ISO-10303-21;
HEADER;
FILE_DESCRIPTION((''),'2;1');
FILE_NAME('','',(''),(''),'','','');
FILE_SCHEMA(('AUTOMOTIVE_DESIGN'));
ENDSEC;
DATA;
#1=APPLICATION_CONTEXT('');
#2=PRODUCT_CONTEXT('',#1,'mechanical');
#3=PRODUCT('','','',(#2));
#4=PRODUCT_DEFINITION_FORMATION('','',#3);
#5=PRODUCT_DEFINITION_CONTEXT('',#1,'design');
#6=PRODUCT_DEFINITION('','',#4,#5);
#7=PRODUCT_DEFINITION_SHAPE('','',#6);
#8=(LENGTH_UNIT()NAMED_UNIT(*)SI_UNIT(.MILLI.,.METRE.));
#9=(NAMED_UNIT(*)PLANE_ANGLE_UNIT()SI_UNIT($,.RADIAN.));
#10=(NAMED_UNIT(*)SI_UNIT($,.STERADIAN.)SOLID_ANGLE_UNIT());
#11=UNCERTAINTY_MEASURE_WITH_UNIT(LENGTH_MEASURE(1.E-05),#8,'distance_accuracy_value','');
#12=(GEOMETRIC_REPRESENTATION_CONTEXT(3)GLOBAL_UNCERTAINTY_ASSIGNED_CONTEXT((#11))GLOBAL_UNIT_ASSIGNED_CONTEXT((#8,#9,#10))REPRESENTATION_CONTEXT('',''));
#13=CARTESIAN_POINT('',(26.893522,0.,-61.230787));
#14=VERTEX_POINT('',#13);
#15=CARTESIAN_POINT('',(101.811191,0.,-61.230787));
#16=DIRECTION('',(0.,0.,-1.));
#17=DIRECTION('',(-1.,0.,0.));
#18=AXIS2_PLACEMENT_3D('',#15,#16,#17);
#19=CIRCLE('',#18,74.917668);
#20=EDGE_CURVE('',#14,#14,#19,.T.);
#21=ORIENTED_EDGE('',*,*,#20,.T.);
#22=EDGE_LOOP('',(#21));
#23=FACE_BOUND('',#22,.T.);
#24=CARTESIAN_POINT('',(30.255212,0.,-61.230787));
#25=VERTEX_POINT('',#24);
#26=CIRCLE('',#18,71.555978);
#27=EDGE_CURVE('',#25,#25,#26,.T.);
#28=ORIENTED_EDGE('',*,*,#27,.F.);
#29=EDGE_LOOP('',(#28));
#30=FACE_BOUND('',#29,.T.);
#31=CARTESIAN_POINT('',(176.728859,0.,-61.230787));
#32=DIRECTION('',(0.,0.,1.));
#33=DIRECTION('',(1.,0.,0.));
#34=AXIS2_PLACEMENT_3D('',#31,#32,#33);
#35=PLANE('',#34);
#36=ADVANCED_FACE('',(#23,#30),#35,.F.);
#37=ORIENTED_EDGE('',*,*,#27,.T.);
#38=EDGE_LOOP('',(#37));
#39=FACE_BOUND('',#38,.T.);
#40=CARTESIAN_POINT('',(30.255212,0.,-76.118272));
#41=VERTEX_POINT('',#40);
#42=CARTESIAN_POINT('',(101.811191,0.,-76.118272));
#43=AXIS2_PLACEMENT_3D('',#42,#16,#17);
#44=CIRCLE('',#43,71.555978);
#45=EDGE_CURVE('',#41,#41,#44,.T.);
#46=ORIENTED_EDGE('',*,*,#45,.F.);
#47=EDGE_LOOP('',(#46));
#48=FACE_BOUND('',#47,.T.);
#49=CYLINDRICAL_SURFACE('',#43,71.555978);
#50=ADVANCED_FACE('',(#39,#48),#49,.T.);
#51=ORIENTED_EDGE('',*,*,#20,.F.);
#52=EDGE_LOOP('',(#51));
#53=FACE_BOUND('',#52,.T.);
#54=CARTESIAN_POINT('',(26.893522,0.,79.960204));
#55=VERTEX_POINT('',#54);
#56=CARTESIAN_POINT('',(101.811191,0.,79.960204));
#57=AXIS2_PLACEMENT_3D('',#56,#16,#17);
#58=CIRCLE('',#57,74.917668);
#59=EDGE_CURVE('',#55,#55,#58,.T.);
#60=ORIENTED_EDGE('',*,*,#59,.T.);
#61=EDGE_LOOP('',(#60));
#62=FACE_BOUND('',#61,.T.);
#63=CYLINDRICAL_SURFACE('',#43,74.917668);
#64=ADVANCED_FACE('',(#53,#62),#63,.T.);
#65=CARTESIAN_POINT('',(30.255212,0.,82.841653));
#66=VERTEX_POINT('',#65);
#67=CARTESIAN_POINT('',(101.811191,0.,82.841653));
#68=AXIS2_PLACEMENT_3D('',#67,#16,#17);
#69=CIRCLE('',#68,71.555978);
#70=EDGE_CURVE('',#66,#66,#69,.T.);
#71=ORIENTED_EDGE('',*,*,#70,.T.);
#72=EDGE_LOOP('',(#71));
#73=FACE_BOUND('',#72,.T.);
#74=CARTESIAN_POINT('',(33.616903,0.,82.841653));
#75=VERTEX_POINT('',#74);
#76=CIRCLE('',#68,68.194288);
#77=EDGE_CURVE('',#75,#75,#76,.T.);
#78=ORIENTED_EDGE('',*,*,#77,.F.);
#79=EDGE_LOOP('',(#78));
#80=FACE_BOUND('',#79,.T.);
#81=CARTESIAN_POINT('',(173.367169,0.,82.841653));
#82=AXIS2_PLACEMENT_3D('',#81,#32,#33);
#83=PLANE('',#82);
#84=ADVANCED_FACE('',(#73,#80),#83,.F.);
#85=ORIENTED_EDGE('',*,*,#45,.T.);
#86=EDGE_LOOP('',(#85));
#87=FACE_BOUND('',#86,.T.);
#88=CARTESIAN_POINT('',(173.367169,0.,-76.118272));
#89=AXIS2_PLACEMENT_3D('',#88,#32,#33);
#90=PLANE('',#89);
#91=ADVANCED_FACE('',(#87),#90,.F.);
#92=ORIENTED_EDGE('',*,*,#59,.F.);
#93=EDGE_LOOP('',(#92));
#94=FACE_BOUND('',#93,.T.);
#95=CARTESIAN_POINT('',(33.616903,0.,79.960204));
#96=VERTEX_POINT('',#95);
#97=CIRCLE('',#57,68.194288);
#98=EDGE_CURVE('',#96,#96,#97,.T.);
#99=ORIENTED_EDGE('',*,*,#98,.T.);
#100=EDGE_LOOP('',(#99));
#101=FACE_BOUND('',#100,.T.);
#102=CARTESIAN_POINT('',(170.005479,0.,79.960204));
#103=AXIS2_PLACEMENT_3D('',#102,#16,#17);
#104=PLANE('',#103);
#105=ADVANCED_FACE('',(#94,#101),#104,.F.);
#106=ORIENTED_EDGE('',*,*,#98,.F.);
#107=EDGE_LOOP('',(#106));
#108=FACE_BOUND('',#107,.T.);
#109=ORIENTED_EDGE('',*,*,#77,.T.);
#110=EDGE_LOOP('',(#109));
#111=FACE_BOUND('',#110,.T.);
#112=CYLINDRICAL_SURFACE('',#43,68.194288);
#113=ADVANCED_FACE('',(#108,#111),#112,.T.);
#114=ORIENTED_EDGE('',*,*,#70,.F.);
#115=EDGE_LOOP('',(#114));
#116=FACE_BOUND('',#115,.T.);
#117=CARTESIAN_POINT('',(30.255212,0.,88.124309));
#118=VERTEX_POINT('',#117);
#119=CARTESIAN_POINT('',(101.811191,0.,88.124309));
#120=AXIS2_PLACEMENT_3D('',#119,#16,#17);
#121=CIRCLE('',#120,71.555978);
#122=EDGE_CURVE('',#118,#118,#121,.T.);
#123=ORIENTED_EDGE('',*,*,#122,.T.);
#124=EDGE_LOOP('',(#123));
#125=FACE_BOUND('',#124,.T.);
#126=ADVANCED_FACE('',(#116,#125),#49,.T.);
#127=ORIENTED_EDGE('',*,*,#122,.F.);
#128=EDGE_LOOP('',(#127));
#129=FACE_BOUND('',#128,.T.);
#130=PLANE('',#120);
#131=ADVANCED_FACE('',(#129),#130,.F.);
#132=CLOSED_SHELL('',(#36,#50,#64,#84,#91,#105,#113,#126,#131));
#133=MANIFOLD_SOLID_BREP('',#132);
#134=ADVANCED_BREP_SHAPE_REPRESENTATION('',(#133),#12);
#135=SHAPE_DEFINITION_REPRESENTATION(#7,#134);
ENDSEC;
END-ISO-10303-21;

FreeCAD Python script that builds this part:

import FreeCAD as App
import Part
import Sketcher
from FreeCAD import Vector

doc = App.newDocument("Part")
params = doc.addObject("Spreadsheet::Sheet", "Params")
for row, (alias, value) in enumerate([
    ("revolution_angle", "360 deg"),
], start=1):
    params.set(f"A{row}", alias)
    params.set(f"B{row}", "=" + value)
    params.setAlias(f"B{row}", alias)

body = doc.addObject("PartDesign::Body", "Body")

sketch1 = body.newObject("Sketcher::SketchObject", "Sketch")
sketch1.AttachmentSupport = (doc.getObject("XZ_Plane"), [""])
sketch1.MapMode = "FlatFace"
sketch1.addGeometry([
    Part.LineSegment(Vector(101.8, 88.1, 0), Vector(173.4, 88.1, 0)),
    Part.LineSegment(Vector(173.4, 88.1, 0), Vector(173.4, 82.8, 0)),
    Part.LineSegment(Vector(173.4, 82.8, 0), Vector(170, 82.8, 0)),
    Part.LineSegment(Vector(170, 82.8, 0), Vector(170, 80, 0)),
    Part.LineSegment(Vector(170, 80, 0), Vector(176.7, 80, 0)),
    Part.LineSegment(Vector(176.7, 80, 0), Vector(176.7, -61.2, 0)),
    Part.LineSegment(Vector(176.7, -61.2, 0), Vector(173.4, -61.2, 0)),
    Part.LineSegment(Vector(173.4, -61.2, 0), Vector(173.4, -76.1, 0)),
    Part.LineSegment(Vector(173.4, -76.1, 0), Vector(101.8, -76.1, 0)),
    Part.LineSegment(Vector(101.8, -76.1, 0), Vector(101.8, 88.1, 0)),
], False)
sketch1.addGeometry(Part.LineSegment(Vector(101.8, -76.1, 0), Vector(101.8, 88.1, 0)), True)
sketch1.addConstraint([
    Sketcher.Constraint("Coincident", 0, 2, 1, 1),
    Sketcher.Constraint("Coincident", 1, 2, 2, 1),
    Sketcher.Constraint("Coincident", 2, 2, 3, 1),
    Sketcher.Constraint("Coincident", 3, 2, 4, 1),
    Sketcher.Constraint("Coincident", 4, 2, 5, 1),
    Sketcher.Constraint("Coincident", 5, 2, 6, 1),
    Sketcher.Constraint("Coincident", 6, 2, 7, 1),
    Sketcher.Constraint("Coincident", 7, 2, 8, 1),
    Sketcher.Constraint("Coincident", 8, 2, 9, 1),
    Sketcher.Constraint("Coincident", 9, 2, 0, 1),
    Sketcher.Constraint("Horizontal", 0),
    Sketcher.Constraint("Vertical", 1),
    Sketcher.Constraint("Horizontal", 2),
    Sketcher.Constraint("Vertical", 3),
    Sketcher.Constraint("Horizontal", 4),
    Sketcher.Constraint("Vertical", 5),
    Sketcher.Constraint("Horizontal", 6),
    Sketcher.Constraint("Vertical", 7),
    Sketcher.Constraint("Horizontal", 8),
    Sketcher.Constraint("Vertical", 9),
    Sketcher.Constraint("Vertical", 10),
    Sketcher.Constraint("Coincident", 10, 1, 8, 2),
    Sketcher.Constraint("Horizontal", 0, 2, 10, 2),
    Sketcher.Constraint("Vertical", 1, 2, 6, 2),
    Sketcher.Constraint("Equal", 2, 6),
    Sketcher.Constraint("DistanceX", 0, 1, 0, 2, 71.555978),
    Sketcher.Constraint("DistanceX", 2, 2, 2, 1, 3.36169),
    Sketcher.Constraint("DistanceY", 3, 2, 3, 1, 2.881449),
    Sketcher.Constraint("DistanceY", 5, 2, 5, 1, 141.190991),
    Sketcher.Constraint("DistanceY", 9, 1, 9, 2, 164.242581),
    Sketcher.Constraint("DistanceY", 1, 2, 1, 1, 5.282656),
    Sketcher.Constraint("DistanceX", -1, 1, 0, 2, 173.367169),
    Sketcher.Constraint("DistanceY", -1, 1, 0, 2, 88.124309),
])
revolution = body.newObject("PartDesign::Revolution", "Revolution")
revolution.Profile = sketch1
revolution.ReferenceAxis = (sketch1, ["Axis0"])
revolution.setExpression("Angle", "Params.revolution_angle")

doc.recompute()
